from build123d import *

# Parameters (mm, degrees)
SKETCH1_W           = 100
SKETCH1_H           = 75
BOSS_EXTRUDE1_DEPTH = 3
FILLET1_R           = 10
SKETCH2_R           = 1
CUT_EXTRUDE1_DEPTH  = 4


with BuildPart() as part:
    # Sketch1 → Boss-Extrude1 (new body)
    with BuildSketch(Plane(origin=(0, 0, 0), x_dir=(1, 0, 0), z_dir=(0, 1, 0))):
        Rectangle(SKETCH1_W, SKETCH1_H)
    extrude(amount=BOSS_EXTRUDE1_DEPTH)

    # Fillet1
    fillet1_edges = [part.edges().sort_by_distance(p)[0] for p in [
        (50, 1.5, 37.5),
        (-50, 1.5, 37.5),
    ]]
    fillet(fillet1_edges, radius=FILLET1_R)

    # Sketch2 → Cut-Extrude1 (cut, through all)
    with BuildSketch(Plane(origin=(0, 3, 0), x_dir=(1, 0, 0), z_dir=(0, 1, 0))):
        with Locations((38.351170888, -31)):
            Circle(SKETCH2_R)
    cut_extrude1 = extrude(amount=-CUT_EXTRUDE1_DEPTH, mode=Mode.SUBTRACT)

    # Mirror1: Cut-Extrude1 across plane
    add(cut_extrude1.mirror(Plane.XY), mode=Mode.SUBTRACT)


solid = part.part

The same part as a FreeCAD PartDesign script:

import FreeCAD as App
import Part
import Sketcher
from FreeCAD import Vector


def edges_at(feature, points):
    """Names of the edges that pass closest to the given points."""
    edges = feature.Shape.Edges
    near = lambda p: min(range(len(edges)), key=lambda i: edges[i].distToShape(Part.Vertex(*p))[0])
    return sorted({f"Edge{near(p) + 1}" for p in points})


def add_polygon(sketch, points):
    """Adds a closed chain of lines whose ends are joined by coincident constraints."""
    first, n = sketch.GeometryCount, len(points)
    for a, b in zip(points, points[1:] + points[:1]):
        sketch.addGeometry(Part.LineSegment(App.Vector(*a, 0), App.Vector(*b, 0)), False)
    for i in range(n):
        sketch.addConstraint(Sketcher.Constraint("Coincident", first + i, 2, first + (i + 1) % n, 1))

doc = App.newDocument("Part")
body = doc.addObject("PartDesign::Body", "Body")

# Sketch on XZ plane
sketch1 = doc.addObject("Sketcher::SketchObject", "Sketch")
body.addObject(sketch1)
sketch1.AttachmentSupport = (doc.XZ_Plane, [""])
sketch1.MapMode = "FlatFace"
add_polygon(sketch1, [(-50, -38), (-50, 38), (50, 38), (50, -38)])  # lines 0-3
sketch1.addConstraint([
    Sketcher.Constraint("Vertical", 0),
    Sketcher.Constraint("Horizontal", 1),
    Sketcher.Constraint("Vertical", 2),
    Sketcher.Constraint("Horizontal", 3),
    Sketcher.Constraint("Symmetric", 0, 2, 2, 2, -1, 1),
    Sketcher.Constraint("DistanceX", 1, 1, 1, 2, 100.0),
    Sketcher.Constraint("DistanceY", 0, 1, 0, 2, 75.0),
])
pad1 = doc.addObject("PartDesign::Pad", "Pad")
body.addObject(pad1)
pad1.Profile = sketch1
pad1.Length = 3
pad1.Reversed = True
doc.recompute()

fillet = doc.addObject("PartDesign::Fillet", "Fillet")
body.addObject(fillet)
fillet.Base = (pad1, edges_at(pad1, [(50, 1.5, 37.5), (-50, 1.5, 37.5)]))
fillet.Radius = 10

# Sketch on XZ plane
sketch2 = doc.addObject("Sketcher::SketchObject", "Sketch001")
body.addObject(sketch2)
sketch2.AttachmentSupport = (doc.XZ_Plane, [""])
sketch2.MapMode = "FlatFace"
sketch2.AttachmentOffset = App.Placement(Vector(0, 0, -3), App.Rotation())
sketch2.addGeometry(Part.Circle(Vector(38.4, 31, 0), Vector(0, 0, 1), 1), False)
sketch2.addConstraint([
    Sketcher.Constraint("Diameter", 0, 2.0),
    Sketcher.Constraint("DistanceY", -1, 1, 0, 3, 31.0),
    Sketcher.Constraint("DistanceX", -1, 1, 0, 3, 38.351171),
])
pocket1 = doc.addObject("PartDesign::Pocket", "Pocket")
body.addObject(pocket1)
pocket1.Profile = sketch2
pocket1.Type = "ThroughAll"
pocket1.Reversed = True
doc.recompute()

mirrored = doc.addObject("PartDesign::Mirrored", "Mirrored")
body.addObject(mirrored)
mirrored.Originals = [pocket1]
mirrored.MirrorPlane = (doc.XY_Plane, [""])
body.Tip = mirrored

doc.recompute()
